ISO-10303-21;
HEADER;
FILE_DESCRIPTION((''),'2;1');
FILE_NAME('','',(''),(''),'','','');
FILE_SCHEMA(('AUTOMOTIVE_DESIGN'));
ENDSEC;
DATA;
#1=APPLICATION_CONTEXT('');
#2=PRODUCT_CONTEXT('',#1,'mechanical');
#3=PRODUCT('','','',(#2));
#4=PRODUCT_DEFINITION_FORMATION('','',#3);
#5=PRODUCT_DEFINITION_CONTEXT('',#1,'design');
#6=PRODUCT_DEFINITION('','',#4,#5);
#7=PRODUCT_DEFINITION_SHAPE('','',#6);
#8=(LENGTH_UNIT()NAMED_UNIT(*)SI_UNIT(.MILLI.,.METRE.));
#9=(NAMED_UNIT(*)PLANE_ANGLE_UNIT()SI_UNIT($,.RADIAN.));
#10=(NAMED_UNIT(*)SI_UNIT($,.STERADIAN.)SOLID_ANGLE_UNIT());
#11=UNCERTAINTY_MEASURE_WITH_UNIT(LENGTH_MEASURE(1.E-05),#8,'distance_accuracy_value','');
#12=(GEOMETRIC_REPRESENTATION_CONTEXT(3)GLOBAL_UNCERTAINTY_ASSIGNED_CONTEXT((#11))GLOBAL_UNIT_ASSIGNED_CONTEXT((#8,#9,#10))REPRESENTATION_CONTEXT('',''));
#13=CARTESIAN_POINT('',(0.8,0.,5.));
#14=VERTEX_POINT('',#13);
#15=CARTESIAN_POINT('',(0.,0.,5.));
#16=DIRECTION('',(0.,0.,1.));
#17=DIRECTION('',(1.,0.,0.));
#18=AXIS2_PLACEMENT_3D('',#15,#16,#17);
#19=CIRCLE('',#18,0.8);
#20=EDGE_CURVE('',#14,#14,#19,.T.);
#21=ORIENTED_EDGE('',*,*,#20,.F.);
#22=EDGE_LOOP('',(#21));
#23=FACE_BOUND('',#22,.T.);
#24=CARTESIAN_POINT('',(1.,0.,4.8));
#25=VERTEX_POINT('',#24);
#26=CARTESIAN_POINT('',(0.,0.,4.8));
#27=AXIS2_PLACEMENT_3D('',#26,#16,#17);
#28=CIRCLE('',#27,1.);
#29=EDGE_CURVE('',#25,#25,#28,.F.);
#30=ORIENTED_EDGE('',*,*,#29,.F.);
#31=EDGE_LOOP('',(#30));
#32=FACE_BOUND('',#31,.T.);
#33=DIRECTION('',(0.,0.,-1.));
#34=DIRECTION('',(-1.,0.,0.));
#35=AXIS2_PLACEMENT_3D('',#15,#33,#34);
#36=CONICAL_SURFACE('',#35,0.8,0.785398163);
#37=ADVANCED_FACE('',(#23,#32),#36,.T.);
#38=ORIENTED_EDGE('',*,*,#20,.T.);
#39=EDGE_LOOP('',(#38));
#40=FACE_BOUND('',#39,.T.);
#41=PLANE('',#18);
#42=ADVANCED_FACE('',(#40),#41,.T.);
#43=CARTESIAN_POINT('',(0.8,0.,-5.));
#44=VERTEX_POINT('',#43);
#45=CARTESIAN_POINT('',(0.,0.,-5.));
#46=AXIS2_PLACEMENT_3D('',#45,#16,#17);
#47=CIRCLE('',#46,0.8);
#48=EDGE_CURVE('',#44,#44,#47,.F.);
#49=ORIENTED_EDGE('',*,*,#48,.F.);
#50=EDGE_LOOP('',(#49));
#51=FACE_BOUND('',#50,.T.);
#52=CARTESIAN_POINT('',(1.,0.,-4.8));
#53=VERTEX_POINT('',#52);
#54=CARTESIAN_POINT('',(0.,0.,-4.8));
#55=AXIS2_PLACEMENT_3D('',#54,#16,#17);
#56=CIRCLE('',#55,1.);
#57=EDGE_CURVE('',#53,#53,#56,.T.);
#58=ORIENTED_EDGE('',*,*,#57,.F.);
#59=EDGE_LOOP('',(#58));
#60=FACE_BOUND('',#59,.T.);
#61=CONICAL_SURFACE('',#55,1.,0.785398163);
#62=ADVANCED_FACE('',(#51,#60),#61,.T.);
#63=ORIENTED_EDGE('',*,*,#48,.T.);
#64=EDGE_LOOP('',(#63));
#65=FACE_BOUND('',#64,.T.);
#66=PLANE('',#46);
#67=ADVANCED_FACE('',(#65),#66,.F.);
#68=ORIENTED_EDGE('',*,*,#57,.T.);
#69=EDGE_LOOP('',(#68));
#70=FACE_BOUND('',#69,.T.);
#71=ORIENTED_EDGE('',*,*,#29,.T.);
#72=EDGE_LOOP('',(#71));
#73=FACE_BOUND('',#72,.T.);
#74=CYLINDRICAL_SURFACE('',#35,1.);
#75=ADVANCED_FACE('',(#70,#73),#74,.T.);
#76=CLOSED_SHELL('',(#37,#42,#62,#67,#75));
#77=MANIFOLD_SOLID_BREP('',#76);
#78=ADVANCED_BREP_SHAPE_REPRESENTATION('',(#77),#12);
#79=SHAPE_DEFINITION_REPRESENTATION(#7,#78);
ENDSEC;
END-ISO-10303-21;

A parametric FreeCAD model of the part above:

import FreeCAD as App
import Part
import Sketcher

V = App.Vector


def edges_at(feature, points):
    """Names of the edges that pass closest to the given points."""
    edges = feature.Shape.Edges
    near = lambda p: min(range(len(edges)), key=lambda i: edges[i].distToShape(Part.Vertex(*p))[0])
    return sorted({f"Edge{near(p) + 1}" for p in points})

doc = App.newDocument("Part")
body = doc.addObject("PartDesign::Body", "Body")

# Sketch on XY plane
sketch1 = body.newObject("Sketcher::SketchObject", "Sketch")
sketch1.AttachmentSupport = (doc.getObject("XY_Plane"), [""])
sketch1.MapMode = "FlatFace"
sketch1.addGeometry(Part.Circle(V(0, 0, 0), V(0, 0, 1), 1), False)
sketch1.addConstraint([
    Sketcher.Constraint("Coincident", 0, 3, -1, 1),
    Sketcher.Constraint("Diameter", 0, 2.0),
])
pad1 = body.newObject("PartDesign::Pad", "Pad")
pad1.Profile = sketch1
pad1.Length = 10
pad1.Midplane = True
doc.recompute()

chamfer = body.newObject("PartDesign::Chamfer", "Chamfer")
chamfer.Base = (pad1, edges_at(pad1, [(-1, 0, -5), (-1, 0, 5)]))
chamfer.Size = 0.2

doc.recompute()
